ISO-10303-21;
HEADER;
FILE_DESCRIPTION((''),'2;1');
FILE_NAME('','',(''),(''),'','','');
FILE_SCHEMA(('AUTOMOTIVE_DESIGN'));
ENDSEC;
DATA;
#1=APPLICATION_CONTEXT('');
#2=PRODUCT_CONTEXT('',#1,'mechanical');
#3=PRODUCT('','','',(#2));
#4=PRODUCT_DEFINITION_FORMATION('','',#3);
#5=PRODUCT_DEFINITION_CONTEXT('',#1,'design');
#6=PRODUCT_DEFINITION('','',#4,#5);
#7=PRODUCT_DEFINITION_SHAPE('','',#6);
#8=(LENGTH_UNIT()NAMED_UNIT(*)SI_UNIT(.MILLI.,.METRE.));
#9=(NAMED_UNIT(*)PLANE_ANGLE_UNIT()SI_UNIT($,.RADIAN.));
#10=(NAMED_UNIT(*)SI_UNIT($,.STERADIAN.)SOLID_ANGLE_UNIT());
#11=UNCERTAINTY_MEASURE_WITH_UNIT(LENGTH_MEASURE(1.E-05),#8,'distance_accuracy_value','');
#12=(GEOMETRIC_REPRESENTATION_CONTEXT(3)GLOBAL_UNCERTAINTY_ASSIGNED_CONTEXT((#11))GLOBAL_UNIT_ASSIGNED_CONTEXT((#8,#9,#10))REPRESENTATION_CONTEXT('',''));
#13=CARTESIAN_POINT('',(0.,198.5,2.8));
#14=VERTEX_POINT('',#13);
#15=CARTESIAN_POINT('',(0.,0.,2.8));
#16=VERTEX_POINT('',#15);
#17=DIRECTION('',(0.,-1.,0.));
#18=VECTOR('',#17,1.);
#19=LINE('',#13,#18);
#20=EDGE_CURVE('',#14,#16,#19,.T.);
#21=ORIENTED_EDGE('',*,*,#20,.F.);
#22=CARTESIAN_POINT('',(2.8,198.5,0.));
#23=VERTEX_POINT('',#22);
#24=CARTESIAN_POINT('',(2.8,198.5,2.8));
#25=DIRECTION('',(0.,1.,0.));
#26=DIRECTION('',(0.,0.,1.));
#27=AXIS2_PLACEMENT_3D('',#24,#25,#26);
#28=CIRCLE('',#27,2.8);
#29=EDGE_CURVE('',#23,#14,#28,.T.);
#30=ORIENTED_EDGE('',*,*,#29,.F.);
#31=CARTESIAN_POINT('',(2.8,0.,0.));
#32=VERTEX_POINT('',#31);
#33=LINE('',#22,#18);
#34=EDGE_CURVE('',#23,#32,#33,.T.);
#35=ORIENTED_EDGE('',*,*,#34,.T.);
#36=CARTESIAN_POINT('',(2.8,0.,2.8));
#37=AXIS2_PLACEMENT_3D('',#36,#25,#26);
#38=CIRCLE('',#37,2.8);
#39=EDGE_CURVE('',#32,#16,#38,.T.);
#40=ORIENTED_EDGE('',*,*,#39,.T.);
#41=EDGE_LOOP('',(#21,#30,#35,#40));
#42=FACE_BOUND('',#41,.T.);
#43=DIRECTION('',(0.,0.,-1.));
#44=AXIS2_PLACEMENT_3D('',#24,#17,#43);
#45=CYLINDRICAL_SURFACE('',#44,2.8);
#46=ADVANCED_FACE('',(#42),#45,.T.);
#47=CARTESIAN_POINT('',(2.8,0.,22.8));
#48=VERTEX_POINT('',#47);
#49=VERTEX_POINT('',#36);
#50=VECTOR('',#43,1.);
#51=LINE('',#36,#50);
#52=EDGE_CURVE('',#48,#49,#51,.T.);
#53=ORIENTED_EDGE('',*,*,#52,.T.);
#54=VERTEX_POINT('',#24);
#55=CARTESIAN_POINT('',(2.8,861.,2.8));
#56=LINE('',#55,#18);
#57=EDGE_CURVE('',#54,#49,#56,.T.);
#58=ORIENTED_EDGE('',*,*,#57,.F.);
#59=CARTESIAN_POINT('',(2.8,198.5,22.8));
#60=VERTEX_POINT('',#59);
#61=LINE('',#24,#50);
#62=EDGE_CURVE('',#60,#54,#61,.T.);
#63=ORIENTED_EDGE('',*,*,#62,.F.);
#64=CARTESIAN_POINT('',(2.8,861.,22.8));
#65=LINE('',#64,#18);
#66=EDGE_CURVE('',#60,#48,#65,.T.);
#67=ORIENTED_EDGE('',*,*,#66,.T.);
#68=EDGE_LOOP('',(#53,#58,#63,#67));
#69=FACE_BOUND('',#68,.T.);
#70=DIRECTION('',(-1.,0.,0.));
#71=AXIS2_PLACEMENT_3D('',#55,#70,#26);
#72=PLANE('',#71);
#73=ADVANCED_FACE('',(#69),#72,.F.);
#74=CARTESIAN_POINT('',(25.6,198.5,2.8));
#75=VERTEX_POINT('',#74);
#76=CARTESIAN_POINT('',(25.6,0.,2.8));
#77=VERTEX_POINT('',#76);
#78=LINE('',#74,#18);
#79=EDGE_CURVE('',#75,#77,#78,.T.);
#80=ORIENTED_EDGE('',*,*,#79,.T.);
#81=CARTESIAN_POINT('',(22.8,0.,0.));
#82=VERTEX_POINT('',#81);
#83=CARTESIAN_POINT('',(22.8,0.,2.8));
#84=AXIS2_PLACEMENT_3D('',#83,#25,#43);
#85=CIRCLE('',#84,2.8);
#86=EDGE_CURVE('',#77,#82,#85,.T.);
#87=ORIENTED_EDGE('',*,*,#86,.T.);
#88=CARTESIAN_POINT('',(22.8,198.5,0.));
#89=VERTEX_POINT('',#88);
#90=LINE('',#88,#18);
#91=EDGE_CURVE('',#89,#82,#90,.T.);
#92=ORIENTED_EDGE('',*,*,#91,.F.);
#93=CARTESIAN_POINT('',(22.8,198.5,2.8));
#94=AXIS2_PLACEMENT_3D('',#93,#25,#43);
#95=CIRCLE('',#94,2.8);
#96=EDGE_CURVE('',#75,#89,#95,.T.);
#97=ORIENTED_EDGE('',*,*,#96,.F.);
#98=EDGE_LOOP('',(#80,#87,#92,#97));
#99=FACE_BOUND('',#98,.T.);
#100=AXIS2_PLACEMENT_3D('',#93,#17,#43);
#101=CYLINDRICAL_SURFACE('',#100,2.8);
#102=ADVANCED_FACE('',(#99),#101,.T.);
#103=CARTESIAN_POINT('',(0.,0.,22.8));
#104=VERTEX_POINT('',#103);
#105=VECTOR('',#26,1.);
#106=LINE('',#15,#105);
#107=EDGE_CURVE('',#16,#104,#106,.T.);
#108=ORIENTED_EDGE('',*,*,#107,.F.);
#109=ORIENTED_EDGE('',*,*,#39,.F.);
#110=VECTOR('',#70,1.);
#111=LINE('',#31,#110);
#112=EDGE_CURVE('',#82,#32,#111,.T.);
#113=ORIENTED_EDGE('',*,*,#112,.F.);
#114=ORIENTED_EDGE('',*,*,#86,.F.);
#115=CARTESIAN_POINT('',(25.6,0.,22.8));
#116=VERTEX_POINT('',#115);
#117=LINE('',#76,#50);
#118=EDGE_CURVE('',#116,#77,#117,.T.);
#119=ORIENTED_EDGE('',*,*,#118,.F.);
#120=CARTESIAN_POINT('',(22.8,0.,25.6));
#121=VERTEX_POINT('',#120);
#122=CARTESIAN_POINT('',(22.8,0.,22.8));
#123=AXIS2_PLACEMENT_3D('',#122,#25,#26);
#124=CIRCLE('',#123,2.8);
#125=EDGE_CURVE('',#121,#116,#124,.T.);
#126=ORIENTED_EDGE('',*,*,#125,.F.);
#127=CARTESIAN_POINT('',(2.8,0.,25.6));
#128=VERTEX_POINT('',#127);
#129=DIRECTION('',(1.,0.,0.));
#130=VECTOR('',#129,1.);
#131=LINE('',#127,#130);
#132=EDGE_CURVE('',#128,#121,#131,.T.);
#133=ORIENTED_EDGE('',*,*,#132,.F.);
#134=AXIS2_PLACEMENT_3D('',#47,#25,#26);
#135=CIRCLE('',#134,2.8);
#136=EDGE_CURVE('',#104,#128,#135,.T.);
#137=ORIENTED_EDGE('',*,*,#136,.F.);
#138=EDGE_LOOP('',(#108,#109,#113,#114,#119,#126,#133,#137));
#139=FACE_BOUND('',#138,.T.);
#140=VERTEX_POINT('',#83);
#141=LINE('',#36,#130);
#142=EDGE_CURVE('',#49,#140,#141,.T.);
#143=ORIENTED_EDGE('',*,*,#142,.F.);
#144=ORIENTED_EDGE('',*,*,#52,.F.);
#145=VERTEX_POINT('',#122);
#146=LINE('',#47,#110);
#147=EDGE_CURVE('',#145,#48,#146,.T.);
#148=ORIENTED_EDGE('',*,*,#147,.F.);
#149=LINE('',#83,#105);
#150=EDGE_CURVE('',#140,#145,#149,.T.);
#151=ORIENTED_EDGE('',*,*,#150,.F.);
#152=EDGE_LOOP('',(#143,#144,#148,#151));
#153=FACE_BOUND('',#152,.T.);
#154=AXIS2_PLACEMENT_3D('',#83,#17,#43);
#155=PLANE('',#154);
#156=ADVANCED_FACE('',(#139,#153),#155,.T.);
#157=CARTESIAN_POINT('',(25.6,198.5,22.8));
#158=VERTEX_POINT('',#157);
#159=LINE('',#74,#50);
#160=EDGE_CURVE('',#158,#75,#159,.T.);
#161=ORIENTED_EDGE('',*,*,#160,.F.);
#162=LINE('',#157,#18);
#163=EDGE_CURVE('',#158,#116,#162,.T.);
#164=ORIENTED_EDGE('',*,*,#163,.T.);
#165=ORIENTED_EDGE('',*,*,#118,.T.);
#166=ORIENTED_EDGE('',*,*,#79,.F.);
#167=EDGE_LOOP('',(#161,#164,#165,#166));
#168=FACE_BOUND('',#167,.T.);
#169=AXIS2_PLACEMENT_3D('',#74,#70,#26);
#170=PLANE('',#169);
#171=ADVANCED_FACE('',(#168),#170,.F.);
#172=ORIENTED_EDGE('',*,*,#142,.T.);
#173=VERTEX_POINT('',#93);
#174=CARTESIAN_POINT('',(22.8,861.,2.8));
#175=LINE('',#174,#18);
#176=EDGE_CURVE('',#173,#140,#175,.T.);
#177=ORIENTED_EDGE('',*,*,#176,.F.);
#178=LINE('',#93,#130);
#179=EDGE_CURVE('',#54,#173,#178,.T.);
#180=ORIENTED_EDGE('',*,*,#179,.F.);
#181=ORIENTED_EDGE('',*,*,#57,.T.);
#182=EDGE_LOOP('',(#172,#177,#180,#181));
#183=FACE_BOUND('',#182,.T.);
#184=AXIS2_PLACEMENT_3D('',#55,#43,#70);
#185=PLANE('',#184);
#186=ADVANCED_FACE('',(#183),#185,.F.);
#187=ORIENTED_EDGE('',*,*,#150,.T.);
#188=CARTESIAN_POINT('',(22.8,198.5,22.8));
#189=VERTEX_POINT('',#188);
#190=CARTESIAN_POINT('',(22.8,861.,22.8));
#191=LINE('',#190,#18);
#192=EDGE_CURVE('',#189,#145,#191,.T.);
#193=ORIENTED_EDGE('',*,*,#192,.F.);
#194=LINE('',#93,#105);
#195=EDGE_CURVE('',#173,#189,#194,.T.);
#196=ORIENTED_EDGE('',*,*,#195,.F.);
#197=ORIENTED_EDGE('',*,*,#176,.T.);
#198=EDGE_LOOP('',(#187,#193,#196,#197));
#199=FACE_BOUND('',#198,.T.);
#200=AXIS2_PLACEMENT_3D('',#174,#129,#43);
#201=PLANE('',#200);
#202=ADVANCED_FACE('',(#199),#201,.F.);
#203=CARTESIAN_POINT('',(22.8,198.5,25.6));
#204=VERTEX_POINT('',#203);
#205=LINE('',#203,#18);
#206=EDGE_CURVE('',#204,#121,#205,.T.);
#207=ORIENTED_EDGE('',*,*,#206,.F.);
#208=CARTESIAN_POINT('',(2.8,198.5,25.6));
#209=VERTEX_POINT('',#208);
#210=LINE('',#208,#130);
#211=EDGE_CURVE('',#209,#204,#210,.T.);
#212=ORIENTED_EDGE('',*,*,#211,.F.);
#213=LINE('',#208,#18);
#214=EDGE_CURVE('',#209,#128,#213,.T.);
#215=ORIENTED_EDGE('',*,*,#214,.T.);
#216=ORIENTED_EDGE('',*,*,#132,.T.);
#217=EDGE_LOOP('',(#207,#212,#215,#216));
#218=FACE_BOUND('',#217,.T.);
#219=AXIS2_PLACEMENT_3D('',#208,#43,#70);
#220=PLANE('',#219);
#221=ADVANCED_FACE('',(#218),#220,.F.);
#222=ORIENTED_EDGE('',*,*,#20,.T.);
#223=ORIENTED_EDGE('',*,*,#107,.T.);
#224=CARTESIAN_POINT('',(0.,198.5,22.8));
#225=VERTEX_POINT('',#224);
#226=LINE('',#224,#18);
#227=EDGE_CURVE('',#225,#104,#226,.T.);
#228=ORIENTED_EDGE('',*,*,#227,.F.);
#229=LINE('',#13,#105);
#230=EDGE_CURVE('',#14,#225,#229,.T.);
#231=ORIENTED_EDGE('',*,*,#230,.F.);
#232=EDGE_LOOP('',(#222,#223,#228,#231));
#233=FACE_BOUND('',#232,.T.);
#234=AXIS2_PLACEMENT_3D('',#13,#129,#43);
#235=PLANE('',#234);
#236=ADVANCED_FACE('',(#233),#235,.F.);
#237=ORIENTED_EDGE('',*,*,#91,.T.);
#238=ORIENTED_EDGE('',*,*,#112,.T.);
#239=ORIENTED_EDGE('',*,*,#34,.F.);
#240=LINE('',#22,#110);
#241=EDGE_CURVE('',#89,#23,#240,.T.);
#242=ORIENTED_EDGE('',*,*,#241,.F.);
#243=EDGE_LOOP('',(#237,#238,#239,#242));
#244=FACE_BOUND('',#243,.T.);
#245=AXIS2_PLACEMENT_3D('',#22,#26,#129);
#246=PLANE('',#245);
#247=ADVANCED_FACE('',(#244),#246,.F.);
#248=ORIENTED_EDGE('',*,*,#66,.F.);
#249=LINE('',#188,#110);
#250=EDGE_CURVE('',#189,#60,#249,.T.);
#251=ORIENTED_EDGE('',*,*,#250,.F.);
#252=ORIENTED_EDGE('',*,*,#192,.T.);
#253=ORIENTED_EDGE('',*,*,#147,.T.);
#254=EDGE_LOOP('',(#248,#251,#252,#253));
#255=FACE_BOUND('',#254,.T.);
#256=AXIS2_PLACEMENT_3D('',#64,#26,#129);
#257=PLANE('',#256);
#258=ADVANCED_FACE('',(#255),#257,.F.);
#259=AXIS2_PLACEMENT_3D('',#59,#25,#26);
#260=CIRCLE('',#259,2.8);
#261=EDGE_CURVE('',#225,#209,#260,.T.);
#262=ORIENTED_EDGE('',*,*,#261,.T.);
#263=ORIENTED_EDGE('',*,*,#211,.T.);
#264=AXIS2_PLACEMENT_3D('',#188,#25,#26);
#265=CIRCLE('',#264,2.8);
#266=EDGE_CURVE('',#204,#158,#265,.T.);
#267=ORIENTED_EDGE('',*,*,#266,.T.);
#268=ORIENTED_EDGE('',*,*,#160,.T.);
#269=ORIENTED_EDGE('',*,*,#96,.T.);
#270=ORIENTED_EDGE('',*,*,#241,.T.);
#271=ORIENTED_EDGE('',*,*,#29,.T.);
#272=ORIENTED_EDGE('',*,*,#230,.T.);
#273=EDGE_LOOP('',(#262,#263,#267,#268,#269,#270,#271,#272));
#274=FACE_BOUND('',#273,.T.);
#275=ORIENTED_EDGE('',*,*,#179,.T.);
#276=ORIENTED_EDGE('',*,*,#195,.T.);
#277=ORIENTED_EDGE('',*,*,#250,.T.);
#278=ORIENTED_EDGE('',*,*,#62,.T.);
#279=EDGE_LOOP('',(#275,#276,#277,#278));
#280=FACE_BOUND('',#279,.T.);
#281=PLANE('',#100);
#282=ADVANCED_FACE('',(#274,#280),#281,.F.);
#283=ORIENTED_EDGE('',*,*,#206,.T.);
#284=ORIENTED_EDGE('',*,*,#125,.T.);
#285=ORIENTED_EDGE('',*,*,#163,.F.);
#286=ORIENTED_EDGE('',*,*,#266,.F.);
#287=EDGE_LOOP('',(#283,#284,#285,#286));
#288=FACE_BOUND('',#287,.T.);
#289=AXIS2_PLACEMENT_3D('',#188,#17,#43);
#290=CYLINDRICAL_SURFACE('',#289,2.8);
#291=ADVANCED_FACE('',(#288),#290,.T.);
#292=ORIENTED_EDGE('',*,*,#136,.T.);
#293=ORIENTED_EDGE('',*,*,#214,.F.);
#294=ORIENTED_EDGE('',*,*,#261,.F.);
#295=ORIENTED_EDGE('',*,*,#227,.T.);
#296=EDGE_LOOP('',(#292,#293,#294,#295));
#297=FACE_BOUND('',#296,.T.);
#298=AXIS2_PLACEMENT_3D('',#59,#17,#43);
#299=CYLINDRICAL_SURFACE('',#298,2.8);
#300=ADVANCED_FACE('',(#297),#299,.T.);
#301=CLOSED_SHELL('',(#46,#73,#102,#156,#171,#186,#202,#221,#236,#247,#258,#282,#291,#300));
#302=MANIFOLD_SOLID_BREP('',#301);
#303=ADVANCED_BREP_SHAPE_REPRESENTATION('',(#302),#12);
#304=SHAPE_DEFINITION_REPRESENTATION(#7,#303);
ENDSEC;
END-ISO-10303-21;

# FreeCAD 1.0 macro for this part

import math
import FreeCAD as App
import Part
import Sketcher

doc = App.newDocument("Part")
body = doc.addObject("PartDesign::Body", "Body")

# Sketch on XZ plane
sketch1 = doc.addObject("Sketcher::SketchObject", "Sketch")
body.addObject(sketch1)
sketch1.AttachmentSupport = (doc.XZ_Plane, [""])
sketch1.MapMode = "FlatFace"
sketch1.addGeometry([
    Part.LineSegment(App.Vector(22.8, 0, 0), App.Vector(2.8, 0, 0)),  # 0
    Part.ArcOfCircle(Part.Circle(App.Vector(2.8, 2.8, 0), App.Vector(0, 0, 1), 2.8), math.radians(-180), math.radians(-90)),  # 1
    Part.LineSegment(App.Vector(0, 2.8, 0), App.Vector(0, 22.8, 0)),  # 2
    Part.ArcOfCircle(Part.Circle(App.Vector(2.8, 22.8, 0), App.Vector(0, 0, 1), 2.8), math.radians(90), math.radians(180)),  # 3
    Part.LineSegment(App.Vector(2.8, 25.6, 0), App.Vector(22.8, 25.6, 0)),  # 4
    Part.ArcOfCircle(Part.Circle(App.Vector(22.8, 22.8, 0), App.Vector(0, 0, 1), 2.8), math.radians(0), math.radians(90)),  # 5
    Part.LineSegment(App.Vector(25.6, 22.8, 0), App.Vector(25.6, 2.8, 0)),  # 6
    Part.ArcOfCircle(Part.Circle(App.Vector(22.8, 2.8, 0), App.Vector(0, 0, 1), 2.8), math.radians(-90), math.radians(0)),  # 7
], False)
sketch1.addConstraint([
    Sketcher.Constraint("Tangent", 0, 2, 1, 2),
    Sketcher.Constraint("Tangent", 1, 1, 2, 1),
    Sketcher.Constraint("Tangent", 2, 2, 3, 2),
    Sketcher.Constraint("Tangent", 3, 1, 4, 1),
    Sketcher.Constraint("Tangent", 4, 2, 5, 2),
    Sketcher.Constraint("Tangent", 5, 1, 6, 1),
    Sketcher.Constraint("Tangent", 6, 2, 7, 2),
    Sketcher.Constraint("Tangent", 7, 1, 0, 1),
    Sketcher.Constraint("Horizontal", 0),
    Sketcher.Constraint("Vertical", 2),
    Sketcher.Constraint("Horizontal", 4),
    Sketcher.Constraint("Vertical", 6),
    Sketcher.Constraint("Equal", 1, 3),
    Sketcher.Constraint("Equal", 3, 5),
    Sketcher.Constraint("Equal", 5, 7),
    Sketcher.Constraint("PointOnObject", 0, 2, -1),
    Sketcher.Constraint("PointOnObject", 1, 1, -2),
    Sketcher.Constraint("Equal", 4, 2),
    Sketcher.Constraint("Radius", 1, 2.8),
    Sketcher.Constraint("DistanceX", 0, 2, 0, 1, 20.0),
])
pad1 = doc.addObject("PartDesign::Pad", "Pad")
body.addObject(pad1)
pad1.Profile = sketch1
pad1.Length = 198.5
pad1.Reversed = True

# Sketch on XZ plane
sketch2 = doc.addObject("Sketcher::SketchObject", "Sketch001")
body.addObject(sketch2)
sketch2.AttachmentSupport = (doc.XZ_Plane, [""])
sketch2.MapMode = "FlatFace"
sketch2.addGeometry([
    Part.LineSegment(App.Vector(23, 3, 0), App.Vector(23, 23, 0)),
    Part.LineSegment(App.Vector(23, 23, 0), App.Vector(3, 23, 0)),
    Part.LineSegment(App.Vector(3, 23, 0), App.Vector(3, 3, 0)),
    Part.LineSegment(App.Vector(3, 3, 0), App.Vector(23, 3, 0)),
], False)
sketch2.addConstraint([
    Sketcher.Constraint("Coincident", 0, 2, 1, 1),
    Sketcher.Constraint("Coincident", 1, 2, 2, 1),
    Sketcher.Constraint("Coincident", 2, 2, 3, 1),
    Sketcher.Constraint("Coincident", 3, 2, 0, 1),
    Sketcher.Constraint("Vertical", 0),
    Sketcher.Constraint("Horizontal", 1),
    Sketcher.Constraint("Vertical", 2),
    Sketcher.Constraint("Horizontal", 3),
    Sketcher.Constraint("Equal", 3, 0),
    Sketcher.Constraint("DistanceX", 1, 2, 1, 1, 20.0),
    Sketcher.Constraint("DistanceX", -1, 1, 0, 2, 22.8),
    Sketcher.Constraint("DistanceY", -1, 1, 0, 2, 22.8),
])
pocket1 = doc.addObject("PartDesign::Pocket", "Pocket")
body.addObject(pocket1)
pocket1.Profile = sketch2
pocket1.Length = 861

doc.recompute()
